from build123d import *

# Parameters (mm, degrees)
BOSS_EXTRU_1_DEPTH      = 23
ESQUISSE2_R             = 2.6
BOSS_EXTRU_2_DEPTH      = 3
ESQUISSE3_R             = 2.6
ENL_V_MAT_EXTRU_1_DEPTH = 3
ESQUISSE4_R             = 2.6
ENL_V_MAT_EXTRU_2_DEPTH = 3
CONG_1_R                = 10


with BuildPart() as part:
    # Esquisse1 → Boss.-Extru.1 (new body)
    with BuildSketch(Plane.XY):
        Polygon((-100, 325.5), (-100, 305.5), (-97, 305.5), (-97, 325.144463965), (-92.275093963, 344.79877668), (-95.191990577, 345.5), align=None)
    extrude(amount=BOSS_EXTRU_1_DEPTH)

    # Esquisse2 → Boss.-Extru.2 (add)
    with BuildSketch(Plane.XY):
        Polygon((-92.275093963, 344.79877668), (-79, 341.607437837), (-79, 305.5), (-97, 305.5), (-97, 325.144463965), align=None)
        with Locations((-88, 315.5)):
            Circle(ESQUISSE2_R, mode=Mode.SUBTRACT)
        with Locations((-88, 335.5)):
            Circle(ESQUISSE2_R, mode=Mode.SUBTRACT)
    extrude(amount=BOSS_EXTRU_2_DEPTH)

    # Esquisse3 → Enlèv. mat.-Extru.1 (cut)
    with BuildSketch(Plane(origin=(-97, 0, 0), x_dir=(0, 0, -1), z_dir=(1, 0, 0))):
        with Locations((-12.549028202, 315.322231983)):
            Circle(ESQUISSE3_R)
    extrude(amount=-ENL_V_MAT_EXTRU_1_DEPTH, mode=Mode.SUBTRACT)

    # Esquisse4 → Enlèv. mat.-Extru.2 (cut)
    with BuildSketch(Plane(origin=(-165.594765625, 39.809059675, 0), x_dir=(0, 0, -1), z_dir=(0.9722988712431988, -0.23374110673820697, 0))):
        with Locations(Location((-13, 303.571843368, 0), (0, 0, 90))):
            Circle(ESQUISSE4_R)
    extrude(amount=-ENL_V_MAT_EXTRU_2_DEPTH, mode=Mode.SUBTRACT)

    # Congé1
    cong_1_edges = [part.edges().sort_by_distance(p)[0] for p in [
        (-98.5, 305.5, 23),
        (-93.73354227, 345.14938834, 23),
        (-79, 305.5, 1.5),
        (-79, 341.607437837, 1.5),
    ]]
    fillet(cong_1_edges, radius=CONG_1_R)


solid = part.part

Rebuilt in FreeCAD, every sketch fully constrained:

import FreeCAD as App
import Part
import Sketcher

V = App.Vector


def edges_at(feature, points):
    """Names of the edges that pass closest to the given points."""
    edges = feature.Shape.Edges
    near = lambda p: min(range(len(edges)), key=lambda i: edges[i].distToShape(Part.Vertex(*p))[0])
    return sorted({f"Edge{near(p) + 1}" for p in points})


def add_polygon(sketch, points):
    """Adds a closed chain of lines whose ends are joined by coincident constraints."""
    first, n = sketch.GeometryCount, len(points)
    for a, b in zip(points, points[1:] + points[:1]):
        sketch.addGeometry(Part.LineSegment(App.Vector(*a, 0), App.Vector(*b, 0)), False)
    for i in range(n):
        sketch.addConstraint(Sketcher.Constraint("Coincident", first + i, 2, first + (i + 1) % n, 1))

doc = App.newDocument("Part")
body = doc.addObject("PartDesign::Body", "Body")

# Sketch on XY plane
sketch1 = body.newObject("Sketcher::SketchObject", "Sketch")
sketch1.AttachmentSupport = (doc.getObject("XY_Plane"), [""])
sketch1.MapMode = "FlatFace"
add_polygon(sketch1, [(-100, 325.5), (-100, 305.5), (-97, 305.5), (-97, 325.144464), (-92.275094, 344.798777), (-95.191991, 345.5)])  # lines 0-5
sketch1.addConstraint(Sketcher.Constraint("Vertical", 0))
sketch1.addConstraint(Sketcher.Constraint("Horizontal", 1))
sketch1.addConstraint(Sketcher.Constraint("Vertical", 2))
sketch1.addConstraint(Sketcher.Constraint("Perpendicular", 3, 4))
sketch1.addConstraint(Sketcher.Constraint("Perpendicular", 4, 5))
sketch1.addConstraint(Sketcher.Constraint("DistanceX", 1, 1, 1, 2, 3.0))
sketch1.addConstraint(Sketcher.Constraint("DistanceY", 0, 2, 0, 1, 20.0))
sketch1.addConstraint(Sketcher.Constraint("Distance", 4, 3.0))
sketch1.addConstraint(Sketcher.Constraint("DistanceX", 0, 2, -1, 1, 100.0))
sketch1.addConstraint(Sketcher.Constraint("DistanceY", 1, 2, 4, 2, 40.0))
sketch1.addConstraint(Sketcher.Constraint("DistanceY", -1, 1, 0, 2, 305.5))
sketch1.addConstraint(Sketcher.Constraint("Distance", 3, 20.214271))
pad1 = body.newObject("PartDesign::Pad", "Pad")
pad1.Profile = sketch1
pad1.Length = 23

# Sketch on XY plane
sketch2 = body.newObject("Sketcher::SketchObject", "Sketch001")
sketch2.AttachmentSupport = (doc.getObject("XY_Plane"), [""])
sketch2.MapMode = "FlatFace"
add_polygon(sketch2, [(-79, 341.607438), (-92.275094, 344.798777), (-97, 325.144464), (-97, 305.5), (-79, 305.5)])  # lines 0-4
sketch2.addGeometry(Part.Circle(V(-88, 315.5, 0), V(0, 0, 1), 2.6), False)  # 5
sketch2.addGeometry(Part.Circle(V(-88, 335.5, 0), V(0, 0, 1), 2.6), False)  # 6
sketch2.addConstraint(Sketcher.Constraint("Vertical", 2))
sketch2.addConstraint(Sketcher.Constraint("Horizontal", 3))
sketch2.addConstraint(Sketcher.Constraint("Vertical", 4))
sketch2.addConstraint(Sketcher.Constraint("Equal", 5, 6))
sketch2.addConstraint(Sketcher.Constraint("Perpendicular", 0, 1))
sketch2.addConstraint(Sketcher.Constraint("Vertical", 5, 3, 6, 3))
sketch2.addConstraint(Sketcher.Constraint("Diameter", 5, 5.2))
sketch2.addConstraint(Sketcher.Constraint("DistanceX", 3, 1, 3, 2, 18.0))
sketch2.addConstraint(Sketcher.Constraint("DistanceX", 5, 3, -1, 1, 88.0))
sketch2.addConstraint(Sketcher.Constraint("DistanceX", 1, 2, -1, 1, 97.0))
sketch2.addConstraint(Sketcher.Constraint("DistanceY", 5, 3, 6, 3, 20.0))
sketch2.addConstraint(Sketcher.Constraint("DistanceY", 2, 2, 5, 3, 10.0))
sketch2.addConstraint(Sketcher.Constraint("DistanceY", -1, 1, 5, 3, 315.5))
sketch2.addConstraint(Sketcher.Constraint("Distance", 1, 20.214271))
sketch2.addConstraint(Sketcher.Constraint("DistanceY", 2, 2, 2, 1, 19.644464))
sketch2.addConstraint(Sketcher.Constraint("DistanceY", 4, 1, 4, 2, 36.107438))
pad2 = body.newObject("PartDesign::Pad", "Pad001")
pad2.Profile = sketch2
pad2.Length = 3

# Sketch on YZ plane
sketch3 = body.newObject("Sketcher::SketchObject", "Sketch002")
sketch3.AttachmentSupport = (doc.getObject("YZ_Plane"), [""])
sketch3.MapMode = "FlatFace"
sketch3.AttachmentOffset = App.Placement(V(0, 0, -97), App.Rotation())
sketch3.addGeometry(Part.Circle(V(315.322232, 12.549028, 0), V(0, 0, 1), 2.6), False)
sketch3.addConstraint(Sketcher.Constraint("Diameter", 0, 5.2))
sketch3.addConstraint(Sketcher.Constraint("DistanceX", -1, 1, 0, 3, 315.322232))
sketch3.addConstraint(Sketcher.Constraint("DistanceY", -1, 1, 0, 3, 12.549028))
pocket1 = body.newObject("PartDesign::Pocket", "Pocket")
pocket1.Profile = sketch3
pocket1.Length = 3

# Sketch on an angled plane
sketch4 = body.newObject("Sketcher::SketchObject", "Sketch003")
sketch4.Placement = App.Placement(V(-165.594766, 39.80906, 0), App.Rotation(V(0, 0, -1), V(0.233741107, 0.972298871, 0), V(0.972298871, -0.233741107, 0), "ZXY"))
sketch4.addGeometry(Part.Circle(V(-13, 303.571843, 0), V(0, 0, 1), 2.6), False)
sketch4.addConstraint(Sketcher.Constraint("Diameter", 0, 5.2))
sketch4.addConstraint(Sketcher.Constraint("DistanceX", 0, 3, -1, 1, 13.0))
sketch4.addConstraint(Sketcher.Constraint("DistanceY", -1, 1, 0, 3, 303.571843))
pocket2 = body.newObject("PartDesign::Pocket", "Pocket001")
pocket2.Profile = sketch4
pocket2.Length = 3
doc.recompute()

fillet = body.newObject("PartDesign::Fillet", "Fillet")
fillet.Base = (pocket2, edges_at(pocket2, [
    (-98.5, 305.5, 23),
    (-93.734, 345.149, 23),
    (-79, 305.5, 1.5),
    (-79, 341.607, 1.5),
]))
fillet.Radius = 10

doc.recompute()
